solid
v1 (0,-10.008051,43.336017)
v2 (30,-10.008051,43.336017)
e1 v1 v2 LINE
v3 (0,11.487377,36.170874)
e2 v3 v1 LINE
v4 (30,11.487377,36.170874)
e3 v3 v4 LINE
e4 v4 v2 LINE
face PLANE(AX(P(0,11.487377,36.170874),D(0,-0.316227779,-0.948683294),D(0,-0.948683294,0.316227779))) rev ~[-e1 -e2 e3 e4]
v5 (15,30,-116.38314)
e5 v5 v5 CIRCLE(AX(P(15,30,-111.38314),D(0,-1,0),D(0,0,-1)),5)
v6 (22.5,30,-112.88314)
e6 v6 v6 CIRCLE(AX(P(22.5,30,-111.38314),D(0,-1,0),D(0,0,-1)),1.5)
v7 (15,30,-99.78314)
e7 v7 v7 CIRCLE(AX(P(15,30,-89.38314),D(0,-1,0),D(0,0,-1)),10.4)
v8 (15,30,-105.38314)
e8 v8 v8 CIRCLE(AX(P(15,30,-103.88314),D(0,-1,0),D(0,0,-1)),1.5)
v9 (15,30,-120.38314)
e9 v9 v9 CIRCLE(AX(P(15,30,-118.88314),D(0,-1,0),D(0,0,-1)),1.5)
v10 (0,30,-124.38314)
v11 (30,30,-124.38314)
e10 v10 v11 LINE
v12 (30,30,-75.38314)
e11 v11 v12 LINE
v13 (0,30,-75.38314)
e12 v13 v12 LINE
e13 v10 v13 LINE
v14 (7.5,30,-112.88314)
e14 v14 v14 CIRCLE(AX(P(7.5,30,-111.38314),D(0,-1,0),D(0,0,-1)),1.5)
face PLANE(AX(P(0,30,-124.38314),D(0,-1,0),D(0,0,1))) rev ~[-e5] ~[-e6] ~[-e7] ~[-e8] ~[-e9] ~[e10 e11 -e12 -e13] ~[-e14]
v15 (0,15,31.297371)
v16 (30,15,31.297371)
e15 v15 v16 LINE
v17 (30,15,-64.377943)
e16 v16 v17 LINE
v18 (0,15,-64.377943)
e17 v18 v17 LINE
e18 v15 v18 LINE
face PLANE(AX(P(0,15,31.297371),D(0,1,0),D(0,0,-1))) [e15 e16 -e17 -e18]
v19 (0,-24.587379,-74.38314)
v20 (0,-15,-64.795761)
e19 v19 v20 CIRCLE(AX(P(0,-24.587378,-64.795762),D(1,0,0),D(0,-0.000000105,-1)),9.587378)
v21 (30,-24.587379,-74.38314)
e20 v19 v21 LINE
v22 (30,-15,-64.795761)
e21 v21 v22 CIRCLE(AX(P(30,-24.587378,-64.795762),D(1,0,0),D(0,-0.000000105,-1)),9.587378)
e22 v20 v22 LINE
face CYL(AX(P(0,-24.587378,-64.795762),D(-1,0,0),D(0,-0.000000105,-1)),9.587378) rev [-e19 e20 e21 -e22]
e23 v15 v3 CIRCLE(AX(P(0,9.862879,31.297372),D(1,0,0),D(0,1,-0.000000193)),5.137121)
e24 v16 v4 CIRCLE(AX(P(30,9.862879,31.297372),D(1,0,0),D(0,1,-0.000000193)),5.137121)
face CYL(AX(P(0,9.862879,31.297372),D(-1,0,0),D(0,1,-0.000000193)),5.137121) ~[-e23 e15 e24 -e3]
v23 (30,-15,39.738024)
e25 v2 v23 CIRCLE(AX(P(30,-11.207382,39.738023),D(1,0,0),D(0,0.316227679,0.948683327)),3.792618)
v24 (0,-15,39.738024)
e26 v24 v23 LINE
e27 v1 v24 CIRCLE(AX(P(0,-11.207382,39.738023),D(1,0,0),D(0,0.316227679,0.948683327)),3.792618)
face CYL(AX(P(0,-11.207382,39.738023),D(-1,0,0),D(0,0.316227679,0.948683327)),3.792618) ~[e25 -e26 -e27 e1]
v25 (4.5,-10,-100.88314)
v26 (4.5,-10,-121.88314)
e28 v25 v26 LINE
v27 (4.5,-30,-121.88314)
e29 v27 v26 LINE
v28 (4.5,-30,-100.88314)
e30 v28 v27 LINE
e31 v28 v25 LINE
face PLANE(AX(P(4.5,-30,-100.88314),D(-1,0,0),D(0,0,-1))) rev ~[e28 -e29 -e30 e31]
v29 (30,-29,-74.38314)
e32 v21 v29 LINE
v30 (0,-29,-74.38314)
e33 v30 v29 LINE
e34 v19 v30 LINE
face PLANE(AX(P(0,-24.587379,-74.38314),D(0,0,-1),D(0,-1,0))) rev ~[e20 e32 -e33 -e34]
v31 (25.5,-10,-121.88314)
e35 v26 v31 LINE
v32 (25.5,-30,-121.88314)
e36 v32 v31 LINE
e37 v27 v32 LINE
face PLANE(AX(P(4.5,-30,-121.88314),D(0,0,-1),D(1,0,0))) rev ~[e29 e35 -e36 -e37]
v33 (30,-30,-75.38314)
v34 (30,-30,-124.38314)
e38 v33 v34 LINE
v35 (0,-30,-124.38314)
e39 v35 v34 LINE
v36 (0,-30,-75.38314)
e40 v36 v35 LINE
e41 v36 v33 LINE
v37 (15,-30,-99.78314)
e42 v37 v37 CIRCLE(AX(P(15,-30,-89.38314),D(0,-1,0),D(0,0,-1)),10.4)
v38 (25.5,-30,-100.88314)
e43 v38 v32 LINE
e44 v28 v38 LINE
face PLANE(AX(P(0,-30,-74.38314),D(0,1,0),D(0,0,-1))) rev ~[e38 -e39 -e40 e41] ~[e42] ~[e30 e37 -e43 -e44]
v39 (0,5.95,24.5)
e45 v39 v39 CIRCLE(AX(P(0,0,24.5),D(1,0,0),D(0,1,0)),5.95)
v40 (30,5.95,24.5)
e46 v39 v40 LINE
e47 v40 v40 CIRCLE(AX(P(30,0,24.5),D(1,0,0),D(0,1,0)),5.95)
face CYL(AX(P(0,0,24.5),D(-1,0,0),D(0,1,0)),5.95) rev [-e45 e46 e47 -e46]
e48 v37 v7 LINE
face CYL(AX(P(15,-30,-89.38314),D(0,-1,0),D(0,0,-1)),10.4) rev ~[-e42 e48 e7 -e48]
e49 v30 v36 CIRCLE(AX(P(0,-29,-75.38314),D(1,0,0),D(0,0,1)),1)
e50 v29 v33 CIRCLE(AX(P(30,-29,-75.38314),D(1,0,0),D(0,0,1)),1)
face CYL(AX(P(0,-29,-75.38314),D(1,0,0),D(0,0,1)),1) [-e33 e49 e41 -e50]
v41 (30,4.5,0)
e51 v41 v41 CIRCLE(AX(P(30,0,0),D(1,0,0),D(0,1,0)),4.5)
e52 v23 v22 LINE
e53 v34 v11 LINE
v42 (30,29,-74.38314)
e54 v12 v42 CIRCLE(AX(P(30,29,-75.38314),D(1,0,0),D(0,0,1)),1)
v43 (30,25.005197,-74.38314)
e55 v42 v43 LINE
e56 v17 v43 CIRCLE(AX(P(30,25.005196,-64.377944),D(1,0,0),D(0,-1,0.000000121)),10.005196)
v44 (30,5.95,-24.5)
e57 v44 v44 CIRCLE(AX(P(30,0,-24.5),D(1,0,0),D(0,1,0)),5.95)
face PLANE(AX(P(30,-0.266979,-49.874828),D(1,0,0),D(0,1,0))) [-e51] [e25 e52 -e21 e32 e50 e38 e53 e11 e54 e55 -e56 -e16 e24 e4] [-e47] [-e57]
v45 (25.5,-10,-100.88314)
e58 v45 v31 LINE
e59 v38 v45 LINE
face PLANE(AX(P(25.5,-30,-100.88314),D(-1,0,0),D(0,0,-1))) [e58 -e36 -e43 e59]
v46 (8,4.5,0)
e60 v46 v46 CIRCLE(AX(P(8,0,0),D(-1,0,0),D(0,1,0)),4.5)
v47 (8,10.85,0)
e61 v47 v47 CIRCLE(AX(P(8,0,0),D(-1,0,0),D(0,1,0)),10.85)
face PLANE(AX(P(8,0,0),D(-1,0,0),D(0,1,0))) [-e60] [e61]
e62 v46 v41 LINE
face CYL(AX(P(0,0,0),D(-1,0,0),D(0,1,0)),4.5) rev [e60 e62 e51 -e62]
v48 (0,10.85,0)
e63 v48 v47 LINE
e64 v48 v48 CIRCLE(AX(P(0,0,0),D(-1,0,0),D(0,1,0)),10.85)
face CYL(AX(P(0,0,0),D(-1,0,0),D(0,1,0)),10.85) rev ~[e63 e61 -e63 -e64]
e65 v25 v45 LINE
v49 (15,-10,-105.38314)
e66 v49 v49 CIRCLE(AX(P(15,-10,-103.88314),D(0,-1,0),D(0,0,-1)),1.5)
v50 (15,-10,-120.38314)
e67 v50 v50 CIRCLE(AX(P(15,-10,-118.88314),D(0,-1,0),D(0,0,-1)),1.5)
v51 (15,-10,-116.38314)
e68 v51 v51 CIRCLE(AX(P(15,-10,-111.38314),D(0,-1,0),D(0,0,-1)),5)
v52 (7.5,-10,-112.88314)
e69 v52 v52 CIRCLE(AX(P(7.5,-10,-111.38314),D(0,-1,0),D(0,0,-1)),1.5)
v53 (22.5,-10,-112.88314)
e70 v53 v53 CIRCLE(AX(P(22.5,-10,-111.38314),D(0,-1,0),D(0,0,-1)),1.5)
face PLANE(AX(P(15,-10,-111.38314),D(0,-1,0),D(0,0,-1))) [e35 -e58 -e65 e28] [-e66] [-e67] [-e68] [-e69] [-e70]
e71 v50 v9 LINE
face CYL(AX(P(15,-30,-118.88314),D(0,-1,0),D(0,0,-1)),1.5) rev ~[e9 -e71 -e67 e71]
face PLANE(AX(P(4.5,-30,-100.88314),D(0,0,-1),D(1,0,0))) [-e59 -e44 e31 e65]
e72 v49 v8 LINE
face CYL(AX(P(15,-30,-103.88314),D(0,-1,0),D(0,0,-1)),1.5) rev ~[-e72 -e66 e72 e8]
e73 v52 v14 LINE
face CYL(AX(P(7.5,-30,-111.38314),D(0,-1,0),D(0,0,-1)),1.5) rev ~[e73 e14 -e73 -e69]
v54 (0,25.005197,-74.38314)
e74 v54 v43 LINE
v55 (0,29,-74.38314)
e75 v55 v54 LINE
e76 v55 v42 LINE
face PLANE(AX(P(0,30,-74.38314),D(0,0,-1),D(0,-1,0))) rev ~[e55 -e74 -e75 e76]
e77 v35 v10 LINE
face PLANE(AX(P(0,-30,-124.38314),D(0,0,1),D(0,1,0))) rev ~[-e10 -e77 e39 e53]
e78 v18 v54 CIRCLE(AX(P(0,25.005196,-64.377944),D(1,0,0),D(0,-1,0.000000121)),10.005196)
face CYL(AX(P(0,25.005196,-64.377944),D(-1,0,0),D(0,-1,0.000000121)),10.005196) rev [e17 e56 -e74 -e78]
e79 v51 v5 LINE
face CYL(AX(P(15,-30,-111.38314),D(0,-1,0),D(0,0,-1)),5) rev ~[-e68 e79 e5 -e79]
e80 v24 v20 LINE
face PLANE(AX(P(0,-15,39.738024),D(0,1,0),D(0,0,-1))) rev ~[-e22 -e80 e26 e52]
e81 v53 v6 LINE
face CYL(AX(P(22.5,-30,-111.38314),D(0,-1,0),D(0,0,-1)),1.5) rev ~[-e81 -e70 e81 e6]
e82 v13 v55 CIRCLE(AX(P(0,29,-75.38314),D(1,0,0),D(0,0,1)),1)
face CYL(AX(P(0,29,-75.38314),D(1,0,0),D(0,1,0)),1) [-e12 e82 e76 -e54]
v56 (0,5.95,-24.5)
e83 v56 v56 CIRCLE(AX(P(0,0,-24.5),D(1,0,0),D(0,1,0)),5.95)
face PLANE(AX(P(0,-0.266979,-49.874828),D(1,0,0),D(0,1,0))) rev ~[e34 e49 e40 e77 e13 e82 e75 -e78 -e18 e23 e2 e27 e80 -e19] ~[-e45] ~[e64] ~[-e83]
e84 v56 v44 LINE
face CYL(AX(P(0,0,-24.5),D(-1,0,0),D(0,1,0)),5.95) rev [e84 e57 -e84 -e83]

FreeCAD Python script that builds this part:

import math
import FreeCAD as App
import Part
import Sketcher
from FreeCAD import Vector


def edges_at(feature, points):
    """Names of the edges that pass closest to the given points."""
    edges = feature.Shape.Edges
    near = lambda p: min(range(len(edges)), key=lambda i: edges[i].distToShape(Part.Vertex(*p))[0])
    return sorted({f"Edge{near(p) + 1}" for p in points})


def add_polygon(sketch, points):
    """Adds a closed chain of lines whose ends are joined by coincident constraints."""
    first, n = sketch.GeometryCount, len(points)
    for a, b in zip(points, points[1:] + points[:1]):
        sketch.addGeometry(Part.LineSegment(App.Vector(*a, 0), App.Vector(*b, 0)), False)
    for i in range(n):
        sketch.addConstraint(Sketcher.Constraint("Coincident", first + i, 2, first + (i + 1) % n, 1))

doc = App.newDocument("Part")
body = doc.addObject("PartDesign::Body", "Body")

# Sketch on YZ plane
sketch1 = body.newObject("Sketcher::SketchObject", "Sketch")
sketch1.AttachmentSupport = (doc.getObject("YZ_Plane"), [""])
sketch1.MapMode = "FlatFace"
sketch1.addGeometry([
    Part.LineSegment(Vector(-15, 39.738024, 0), Vector(-15, -64.795761, 0)),  # 0
    Part.ArcOfCircle(Part.Circle(Vector(-24.587378, -64.795762, 0), Vector(0, 0, 1), 9.587378), math.radians(-90.000006), math.radians(0.000006)),  # 1
    Part.LineSegment(Vector(-24.587379, -74.38314, 0), Vector(-30, -74.38314, 0)),  # 2
    Part.LineSegment(Vector(-30, -74.38314, 0), Vector(-30, -124.38314, 0)),  # 3
    Part.LineSegment(Vector(-30, -124.38314, 0), Vector(30, -124.38314, 0)),  # 4
    Part.LineSegment(Vector(30, -124.38314, 0), Vector(30, -74.38314, 0)),  # 5
    Part.LineSegment(Vector(30, -74.38314, 0), Vector(25.005197, -74.38314, 0)),  # 6
    Part.ArcOfCircle(Part.Circle(Vector(25.005196, -64.377944, 0), Vector(0, 0, 1), 10.005196), math.radians(179.999993), math.radians(270.000007)),  # 7
    Part.LineSegment(Vector(15, -64.377943, 0), Vector(15, 31.297371, 0)),  # 8
    Part.ArcOfCircle(Part.Circle(Vector(9.862879, 31.297372, 0), Vector(0, 0, 1), 5.137121), math.radians(-0.000011), math.radians(71.565074)),  # 9
    Part.LineSegment(Vector(11.487377, 36.170874, 0), Vector(-10.008051, 43.336017, 0)),  # 10
    Part.ArcOfCircle(Part.Circle(Vector(-11.207382, 39.738023, 0), Vector(0, 0, 1), 3.792618), math.radians(71.565056), math.radians(179.999991)),  # 11
    Part.Circle(Vector(0, -24.5, 0), Vector(0, 0, 1), 5.95),  # 12
    Part.Circle(Vector(0, 0, 0), Vector(0, 0, 1), 4.5),  # 13
    Part.Circle(Vector(0, 24.5, 0), Vector(0, 0, 1), 5.95),  # 14
], False)
sketch1.addConstraint([
    Sketcher.Constraint("Tangent", 0, 2, 1, 2),
    Sketcher.Constraint("Tangent", 1, 1, 2, 1),
    Sketcher.Constraint("Coincident", 2, 2, 3, 1),
    Sketcher.Constraint("Coincident", 3, 2, 4, 1),
    Sketcher.Constraint("Coincident", 4, 2, 5, 1),
    Sketcher.Constraint("Coincident", 5, 2, 6, 1),
    Sketcher.Constraint("Tangent", 6, 2, 7, 2),
    Sketcher.Constraint("Tangent", 7, 1, 8, 1),
    Sketcher.Constraint("Tangent", 8, 2, 9, 1),
    Sketcher.Constraint("Tangent", 9, 2, 10, 1),
    Sketcher.Constraint("Tangent", 10, 2, 11, 1),
    Sketcher.Constraint("Tangent", 11, 2, 0, 1),
    Sketcher.Constraint("Vertical", 0),
    Sketcher.Constraint("Horizontal", 2),
    Sketcher.Constraint("Vertical", 3),
    Sketcher.Constraint("Horizontal", 4),
    Sketcher.Constraint("Vertical", 5),
    Sketcher.Constraint("Horizontal", 6),
    Sketcher.Constraint("Vertical", 8),
    Sketcher.Constraint("Coincident", 13, 3, -1, 1),
    Sketcher.Constraint("Equal", 12, 14),
    Sketcher.Constraint("Symmetric", 12, 3, 14, 3, -1, 1),
    Sketcher.Constraint("Symmetric", 2, 2, 5, 2, -2),
    Sketcher.Constraint("PointOnObject", 12, 3, -2),
    Sketcher.Constraint("Diameter", 13, 9.0),
    Sketcher.Constraint("Diameter", 12, 11.9),
    Sketcher.Constraint("DistanceX", 4, 1, 4, 2, 60.0),
    Sketcher.Constraint("DistanceY", 3, 2, 3, 1, 50.0),
    Sketcher.Constraint("DistanceX", 0, 2, -1, 1, 15.0),
    Sketcher.Constraint("DistanceX", -1, 1, 7, 1, 15.0),
    Sketcher.Constraint("DistanceY", 12, 3, 14, 3, 49.0),
    Sketcher.Constraint("Radius", 9, 5.137121),
    Sketcher.Constraint("Radius", 11, 3.792618),
    Sketcher.Constraint("Radius", 1, 9.587378),
    Sketcher.Constraint("Radius", 7, 10.005196),
    Sketcher.Constraint("DistanceX", 9, 3, 9, 2, 1.624498),
    Sketcher.Constraint("DistanceY", 0, 2, 0, 1, 104.533785),
    Sketcher.Constraint("DistanceY", -1, 1, 9, 3, 31.297372),
])
pad1 = body.newObject("PartDesign::Pad", "Pad")
pad1.Profile = sketch1
pad1.Length = 30

# Sketch on YZ plane
sketch2 = body.newObject("Sketcher::SketchObject", "Sketch001")
sketch2.AttachmentSupport = (doc.getObject("YZ_Plane"), [""])
sketch2.MapMode = "FlatFace"
sketch2.addGeometry(Part.Circle(Vector(0, 0, 0), Vector(0, 0, 1), 10.85), False)
sketch2.addConstraint([
    Sketcher.Constraint("Coincident", 0, 3, -1, 1),
    Sketcher.Constraint("Diameter", 0, 21.7),
])
pocket1 = body.newObject("PartDesign::Pocket", "Pocket")
pocket1.Profile = sketch2
pocket1.Length = 8
pocket1.Reversed = True

# Sketch on XZ plane
sketch3 = body.newObject("Sketcher::SketchObject", "Sketch002")
sketch3.AttachmentSupport = (doc.getObject("XZ_Plane"), [""])
sketch3.MapMode = "FlatFace"
sketch3.AttachmentOffset = App.Placement(Vector(0, 0, 30), App.Rotation())
sketch3.addGeometry([
    Part.Circle(Vector(15, -89.38314, 0), Vector(0, 0, 1), 10.4),  # 0
    Part.Circle(Vector(15, -111.38314, 0), Vector(0, 0, 1), 5),  # 1
    Part.Circle(Vector(22.5, -111.38314, 0), Vector(0, 0, 1), 1.5),  # 2
    Part.Circle(Vector(15, -103.88314, 0), Vector(0, 0, 1), 1.5),  # 3
    Part.Circle(Vector(7.5, -111.38314, 0), Vector(0, 0, 1), 1.5),  # 4
    Part.Circle(Vector(15, -118.88314, 0), Vector(0, 0, 1), 1.5),  # 5
], False)
sketch3.addConstraint([
    Sketcher.Constraint("Equal", 2, 3),
    Sketcher.Constraint("Equal", 3, 4),
    Sketcher.Constraint("Equal", 4, 5),
    Sketcher.Constraint("Horizontal", 1, 3, 2, 3),
    Sketcher.Constraint("Horizontal", 2, 3, 4, 3),
    Sketcher.Constraint("Vertical", 0, 3, 1, 3),
    Sketcher.Constraint("Vertical", 1, 3, 3, 3),
    Sketcher.Constraint("Vertical", 3, 3, 5, 3),
    Sketcher.Constraint("Diameter", 1, 10.0),
    Sketcher.Constraint("Diameter", 2, 3.0),
    Sketcher.Constraint("Diameter", 0, 20.8),
    Sketcher.Constraint("DistanceX", -1, 1, 0, 3, 15.0),
    Sketcher.Constraint("DistanceY", 1, 3, 0, 3, 22.0),
    Sketcher.Constraint("DistanceX", 4, 3, 2, 3, 15.0),
    Sketcher.Constraint("DistanceY", 5, 3, 3, 3, 15.0),
    Sketcher.Constraint("DistanceX", -1, 1, 2, 3, 22.5),
    Sketcher.Constraint("DistanceY", 1, 3, 3, 3, 7.5),
    Sketcher.Constraint("DistanceY", 0, 3, -1, 1, 89.38314),
])
pocket2 = body.newObject("PartDesign::Pocket", "Pocket001")
pocket2.Profile = sketch3
pocket2.Length = 60

# Sketch on XZ plane
sketch4 = body.newObject("Sketcher::SketchObject", "Sketch003")
sketch4.AttachmentSupport = (doc.getObject("XZ_Plane"), [""])
sketch4.MapMode = "FlatFace"
sketch4.AttachmentOffset = App.Placement(Vector(0, 0, 30), App.Rotation())
add_polygon(sketch4, [(25.5, -100.88314), (4.5, -100.88314), (4.5, -121.88314), (25.5, -121.88314)])  # lines 0-3
sketch4.addConstraint([
    Sketcher.Constraint("Horizontal", 0),
    Sketcher.Constraint("Vertical", 1),
    Sketcher.Constraint("Horizontal", 2),
    Sketcher.Constraint("Vertical", 3),
    Sketcher.Constraint("Equal", 2, 1),
    Sketcher.Constraint("DistanceX", 0, 2, 0, 1, 21.0),
    Sketcher.Constraint("DistanceX", -1, 1, 0, 2, 4.5),
    Sketcher.Constraint("DistanceY", 0, 2, -1, 1, 100.88314),
])
pocket3 = body.newObject("PartDesign::Pocket", "Pocket002")
pocket3.Profile = sketch4
pocket3.Length = 20
doc.recompute()

fillet = body.newObject("PartDesign::Fillet", "Fillet")
fillet.Base = (pocket3, edges_at(pocket3, [(15, -30, -74.383), (15, 30, -74.383)]))
fillet.Radius = 1

doc.recompute()
